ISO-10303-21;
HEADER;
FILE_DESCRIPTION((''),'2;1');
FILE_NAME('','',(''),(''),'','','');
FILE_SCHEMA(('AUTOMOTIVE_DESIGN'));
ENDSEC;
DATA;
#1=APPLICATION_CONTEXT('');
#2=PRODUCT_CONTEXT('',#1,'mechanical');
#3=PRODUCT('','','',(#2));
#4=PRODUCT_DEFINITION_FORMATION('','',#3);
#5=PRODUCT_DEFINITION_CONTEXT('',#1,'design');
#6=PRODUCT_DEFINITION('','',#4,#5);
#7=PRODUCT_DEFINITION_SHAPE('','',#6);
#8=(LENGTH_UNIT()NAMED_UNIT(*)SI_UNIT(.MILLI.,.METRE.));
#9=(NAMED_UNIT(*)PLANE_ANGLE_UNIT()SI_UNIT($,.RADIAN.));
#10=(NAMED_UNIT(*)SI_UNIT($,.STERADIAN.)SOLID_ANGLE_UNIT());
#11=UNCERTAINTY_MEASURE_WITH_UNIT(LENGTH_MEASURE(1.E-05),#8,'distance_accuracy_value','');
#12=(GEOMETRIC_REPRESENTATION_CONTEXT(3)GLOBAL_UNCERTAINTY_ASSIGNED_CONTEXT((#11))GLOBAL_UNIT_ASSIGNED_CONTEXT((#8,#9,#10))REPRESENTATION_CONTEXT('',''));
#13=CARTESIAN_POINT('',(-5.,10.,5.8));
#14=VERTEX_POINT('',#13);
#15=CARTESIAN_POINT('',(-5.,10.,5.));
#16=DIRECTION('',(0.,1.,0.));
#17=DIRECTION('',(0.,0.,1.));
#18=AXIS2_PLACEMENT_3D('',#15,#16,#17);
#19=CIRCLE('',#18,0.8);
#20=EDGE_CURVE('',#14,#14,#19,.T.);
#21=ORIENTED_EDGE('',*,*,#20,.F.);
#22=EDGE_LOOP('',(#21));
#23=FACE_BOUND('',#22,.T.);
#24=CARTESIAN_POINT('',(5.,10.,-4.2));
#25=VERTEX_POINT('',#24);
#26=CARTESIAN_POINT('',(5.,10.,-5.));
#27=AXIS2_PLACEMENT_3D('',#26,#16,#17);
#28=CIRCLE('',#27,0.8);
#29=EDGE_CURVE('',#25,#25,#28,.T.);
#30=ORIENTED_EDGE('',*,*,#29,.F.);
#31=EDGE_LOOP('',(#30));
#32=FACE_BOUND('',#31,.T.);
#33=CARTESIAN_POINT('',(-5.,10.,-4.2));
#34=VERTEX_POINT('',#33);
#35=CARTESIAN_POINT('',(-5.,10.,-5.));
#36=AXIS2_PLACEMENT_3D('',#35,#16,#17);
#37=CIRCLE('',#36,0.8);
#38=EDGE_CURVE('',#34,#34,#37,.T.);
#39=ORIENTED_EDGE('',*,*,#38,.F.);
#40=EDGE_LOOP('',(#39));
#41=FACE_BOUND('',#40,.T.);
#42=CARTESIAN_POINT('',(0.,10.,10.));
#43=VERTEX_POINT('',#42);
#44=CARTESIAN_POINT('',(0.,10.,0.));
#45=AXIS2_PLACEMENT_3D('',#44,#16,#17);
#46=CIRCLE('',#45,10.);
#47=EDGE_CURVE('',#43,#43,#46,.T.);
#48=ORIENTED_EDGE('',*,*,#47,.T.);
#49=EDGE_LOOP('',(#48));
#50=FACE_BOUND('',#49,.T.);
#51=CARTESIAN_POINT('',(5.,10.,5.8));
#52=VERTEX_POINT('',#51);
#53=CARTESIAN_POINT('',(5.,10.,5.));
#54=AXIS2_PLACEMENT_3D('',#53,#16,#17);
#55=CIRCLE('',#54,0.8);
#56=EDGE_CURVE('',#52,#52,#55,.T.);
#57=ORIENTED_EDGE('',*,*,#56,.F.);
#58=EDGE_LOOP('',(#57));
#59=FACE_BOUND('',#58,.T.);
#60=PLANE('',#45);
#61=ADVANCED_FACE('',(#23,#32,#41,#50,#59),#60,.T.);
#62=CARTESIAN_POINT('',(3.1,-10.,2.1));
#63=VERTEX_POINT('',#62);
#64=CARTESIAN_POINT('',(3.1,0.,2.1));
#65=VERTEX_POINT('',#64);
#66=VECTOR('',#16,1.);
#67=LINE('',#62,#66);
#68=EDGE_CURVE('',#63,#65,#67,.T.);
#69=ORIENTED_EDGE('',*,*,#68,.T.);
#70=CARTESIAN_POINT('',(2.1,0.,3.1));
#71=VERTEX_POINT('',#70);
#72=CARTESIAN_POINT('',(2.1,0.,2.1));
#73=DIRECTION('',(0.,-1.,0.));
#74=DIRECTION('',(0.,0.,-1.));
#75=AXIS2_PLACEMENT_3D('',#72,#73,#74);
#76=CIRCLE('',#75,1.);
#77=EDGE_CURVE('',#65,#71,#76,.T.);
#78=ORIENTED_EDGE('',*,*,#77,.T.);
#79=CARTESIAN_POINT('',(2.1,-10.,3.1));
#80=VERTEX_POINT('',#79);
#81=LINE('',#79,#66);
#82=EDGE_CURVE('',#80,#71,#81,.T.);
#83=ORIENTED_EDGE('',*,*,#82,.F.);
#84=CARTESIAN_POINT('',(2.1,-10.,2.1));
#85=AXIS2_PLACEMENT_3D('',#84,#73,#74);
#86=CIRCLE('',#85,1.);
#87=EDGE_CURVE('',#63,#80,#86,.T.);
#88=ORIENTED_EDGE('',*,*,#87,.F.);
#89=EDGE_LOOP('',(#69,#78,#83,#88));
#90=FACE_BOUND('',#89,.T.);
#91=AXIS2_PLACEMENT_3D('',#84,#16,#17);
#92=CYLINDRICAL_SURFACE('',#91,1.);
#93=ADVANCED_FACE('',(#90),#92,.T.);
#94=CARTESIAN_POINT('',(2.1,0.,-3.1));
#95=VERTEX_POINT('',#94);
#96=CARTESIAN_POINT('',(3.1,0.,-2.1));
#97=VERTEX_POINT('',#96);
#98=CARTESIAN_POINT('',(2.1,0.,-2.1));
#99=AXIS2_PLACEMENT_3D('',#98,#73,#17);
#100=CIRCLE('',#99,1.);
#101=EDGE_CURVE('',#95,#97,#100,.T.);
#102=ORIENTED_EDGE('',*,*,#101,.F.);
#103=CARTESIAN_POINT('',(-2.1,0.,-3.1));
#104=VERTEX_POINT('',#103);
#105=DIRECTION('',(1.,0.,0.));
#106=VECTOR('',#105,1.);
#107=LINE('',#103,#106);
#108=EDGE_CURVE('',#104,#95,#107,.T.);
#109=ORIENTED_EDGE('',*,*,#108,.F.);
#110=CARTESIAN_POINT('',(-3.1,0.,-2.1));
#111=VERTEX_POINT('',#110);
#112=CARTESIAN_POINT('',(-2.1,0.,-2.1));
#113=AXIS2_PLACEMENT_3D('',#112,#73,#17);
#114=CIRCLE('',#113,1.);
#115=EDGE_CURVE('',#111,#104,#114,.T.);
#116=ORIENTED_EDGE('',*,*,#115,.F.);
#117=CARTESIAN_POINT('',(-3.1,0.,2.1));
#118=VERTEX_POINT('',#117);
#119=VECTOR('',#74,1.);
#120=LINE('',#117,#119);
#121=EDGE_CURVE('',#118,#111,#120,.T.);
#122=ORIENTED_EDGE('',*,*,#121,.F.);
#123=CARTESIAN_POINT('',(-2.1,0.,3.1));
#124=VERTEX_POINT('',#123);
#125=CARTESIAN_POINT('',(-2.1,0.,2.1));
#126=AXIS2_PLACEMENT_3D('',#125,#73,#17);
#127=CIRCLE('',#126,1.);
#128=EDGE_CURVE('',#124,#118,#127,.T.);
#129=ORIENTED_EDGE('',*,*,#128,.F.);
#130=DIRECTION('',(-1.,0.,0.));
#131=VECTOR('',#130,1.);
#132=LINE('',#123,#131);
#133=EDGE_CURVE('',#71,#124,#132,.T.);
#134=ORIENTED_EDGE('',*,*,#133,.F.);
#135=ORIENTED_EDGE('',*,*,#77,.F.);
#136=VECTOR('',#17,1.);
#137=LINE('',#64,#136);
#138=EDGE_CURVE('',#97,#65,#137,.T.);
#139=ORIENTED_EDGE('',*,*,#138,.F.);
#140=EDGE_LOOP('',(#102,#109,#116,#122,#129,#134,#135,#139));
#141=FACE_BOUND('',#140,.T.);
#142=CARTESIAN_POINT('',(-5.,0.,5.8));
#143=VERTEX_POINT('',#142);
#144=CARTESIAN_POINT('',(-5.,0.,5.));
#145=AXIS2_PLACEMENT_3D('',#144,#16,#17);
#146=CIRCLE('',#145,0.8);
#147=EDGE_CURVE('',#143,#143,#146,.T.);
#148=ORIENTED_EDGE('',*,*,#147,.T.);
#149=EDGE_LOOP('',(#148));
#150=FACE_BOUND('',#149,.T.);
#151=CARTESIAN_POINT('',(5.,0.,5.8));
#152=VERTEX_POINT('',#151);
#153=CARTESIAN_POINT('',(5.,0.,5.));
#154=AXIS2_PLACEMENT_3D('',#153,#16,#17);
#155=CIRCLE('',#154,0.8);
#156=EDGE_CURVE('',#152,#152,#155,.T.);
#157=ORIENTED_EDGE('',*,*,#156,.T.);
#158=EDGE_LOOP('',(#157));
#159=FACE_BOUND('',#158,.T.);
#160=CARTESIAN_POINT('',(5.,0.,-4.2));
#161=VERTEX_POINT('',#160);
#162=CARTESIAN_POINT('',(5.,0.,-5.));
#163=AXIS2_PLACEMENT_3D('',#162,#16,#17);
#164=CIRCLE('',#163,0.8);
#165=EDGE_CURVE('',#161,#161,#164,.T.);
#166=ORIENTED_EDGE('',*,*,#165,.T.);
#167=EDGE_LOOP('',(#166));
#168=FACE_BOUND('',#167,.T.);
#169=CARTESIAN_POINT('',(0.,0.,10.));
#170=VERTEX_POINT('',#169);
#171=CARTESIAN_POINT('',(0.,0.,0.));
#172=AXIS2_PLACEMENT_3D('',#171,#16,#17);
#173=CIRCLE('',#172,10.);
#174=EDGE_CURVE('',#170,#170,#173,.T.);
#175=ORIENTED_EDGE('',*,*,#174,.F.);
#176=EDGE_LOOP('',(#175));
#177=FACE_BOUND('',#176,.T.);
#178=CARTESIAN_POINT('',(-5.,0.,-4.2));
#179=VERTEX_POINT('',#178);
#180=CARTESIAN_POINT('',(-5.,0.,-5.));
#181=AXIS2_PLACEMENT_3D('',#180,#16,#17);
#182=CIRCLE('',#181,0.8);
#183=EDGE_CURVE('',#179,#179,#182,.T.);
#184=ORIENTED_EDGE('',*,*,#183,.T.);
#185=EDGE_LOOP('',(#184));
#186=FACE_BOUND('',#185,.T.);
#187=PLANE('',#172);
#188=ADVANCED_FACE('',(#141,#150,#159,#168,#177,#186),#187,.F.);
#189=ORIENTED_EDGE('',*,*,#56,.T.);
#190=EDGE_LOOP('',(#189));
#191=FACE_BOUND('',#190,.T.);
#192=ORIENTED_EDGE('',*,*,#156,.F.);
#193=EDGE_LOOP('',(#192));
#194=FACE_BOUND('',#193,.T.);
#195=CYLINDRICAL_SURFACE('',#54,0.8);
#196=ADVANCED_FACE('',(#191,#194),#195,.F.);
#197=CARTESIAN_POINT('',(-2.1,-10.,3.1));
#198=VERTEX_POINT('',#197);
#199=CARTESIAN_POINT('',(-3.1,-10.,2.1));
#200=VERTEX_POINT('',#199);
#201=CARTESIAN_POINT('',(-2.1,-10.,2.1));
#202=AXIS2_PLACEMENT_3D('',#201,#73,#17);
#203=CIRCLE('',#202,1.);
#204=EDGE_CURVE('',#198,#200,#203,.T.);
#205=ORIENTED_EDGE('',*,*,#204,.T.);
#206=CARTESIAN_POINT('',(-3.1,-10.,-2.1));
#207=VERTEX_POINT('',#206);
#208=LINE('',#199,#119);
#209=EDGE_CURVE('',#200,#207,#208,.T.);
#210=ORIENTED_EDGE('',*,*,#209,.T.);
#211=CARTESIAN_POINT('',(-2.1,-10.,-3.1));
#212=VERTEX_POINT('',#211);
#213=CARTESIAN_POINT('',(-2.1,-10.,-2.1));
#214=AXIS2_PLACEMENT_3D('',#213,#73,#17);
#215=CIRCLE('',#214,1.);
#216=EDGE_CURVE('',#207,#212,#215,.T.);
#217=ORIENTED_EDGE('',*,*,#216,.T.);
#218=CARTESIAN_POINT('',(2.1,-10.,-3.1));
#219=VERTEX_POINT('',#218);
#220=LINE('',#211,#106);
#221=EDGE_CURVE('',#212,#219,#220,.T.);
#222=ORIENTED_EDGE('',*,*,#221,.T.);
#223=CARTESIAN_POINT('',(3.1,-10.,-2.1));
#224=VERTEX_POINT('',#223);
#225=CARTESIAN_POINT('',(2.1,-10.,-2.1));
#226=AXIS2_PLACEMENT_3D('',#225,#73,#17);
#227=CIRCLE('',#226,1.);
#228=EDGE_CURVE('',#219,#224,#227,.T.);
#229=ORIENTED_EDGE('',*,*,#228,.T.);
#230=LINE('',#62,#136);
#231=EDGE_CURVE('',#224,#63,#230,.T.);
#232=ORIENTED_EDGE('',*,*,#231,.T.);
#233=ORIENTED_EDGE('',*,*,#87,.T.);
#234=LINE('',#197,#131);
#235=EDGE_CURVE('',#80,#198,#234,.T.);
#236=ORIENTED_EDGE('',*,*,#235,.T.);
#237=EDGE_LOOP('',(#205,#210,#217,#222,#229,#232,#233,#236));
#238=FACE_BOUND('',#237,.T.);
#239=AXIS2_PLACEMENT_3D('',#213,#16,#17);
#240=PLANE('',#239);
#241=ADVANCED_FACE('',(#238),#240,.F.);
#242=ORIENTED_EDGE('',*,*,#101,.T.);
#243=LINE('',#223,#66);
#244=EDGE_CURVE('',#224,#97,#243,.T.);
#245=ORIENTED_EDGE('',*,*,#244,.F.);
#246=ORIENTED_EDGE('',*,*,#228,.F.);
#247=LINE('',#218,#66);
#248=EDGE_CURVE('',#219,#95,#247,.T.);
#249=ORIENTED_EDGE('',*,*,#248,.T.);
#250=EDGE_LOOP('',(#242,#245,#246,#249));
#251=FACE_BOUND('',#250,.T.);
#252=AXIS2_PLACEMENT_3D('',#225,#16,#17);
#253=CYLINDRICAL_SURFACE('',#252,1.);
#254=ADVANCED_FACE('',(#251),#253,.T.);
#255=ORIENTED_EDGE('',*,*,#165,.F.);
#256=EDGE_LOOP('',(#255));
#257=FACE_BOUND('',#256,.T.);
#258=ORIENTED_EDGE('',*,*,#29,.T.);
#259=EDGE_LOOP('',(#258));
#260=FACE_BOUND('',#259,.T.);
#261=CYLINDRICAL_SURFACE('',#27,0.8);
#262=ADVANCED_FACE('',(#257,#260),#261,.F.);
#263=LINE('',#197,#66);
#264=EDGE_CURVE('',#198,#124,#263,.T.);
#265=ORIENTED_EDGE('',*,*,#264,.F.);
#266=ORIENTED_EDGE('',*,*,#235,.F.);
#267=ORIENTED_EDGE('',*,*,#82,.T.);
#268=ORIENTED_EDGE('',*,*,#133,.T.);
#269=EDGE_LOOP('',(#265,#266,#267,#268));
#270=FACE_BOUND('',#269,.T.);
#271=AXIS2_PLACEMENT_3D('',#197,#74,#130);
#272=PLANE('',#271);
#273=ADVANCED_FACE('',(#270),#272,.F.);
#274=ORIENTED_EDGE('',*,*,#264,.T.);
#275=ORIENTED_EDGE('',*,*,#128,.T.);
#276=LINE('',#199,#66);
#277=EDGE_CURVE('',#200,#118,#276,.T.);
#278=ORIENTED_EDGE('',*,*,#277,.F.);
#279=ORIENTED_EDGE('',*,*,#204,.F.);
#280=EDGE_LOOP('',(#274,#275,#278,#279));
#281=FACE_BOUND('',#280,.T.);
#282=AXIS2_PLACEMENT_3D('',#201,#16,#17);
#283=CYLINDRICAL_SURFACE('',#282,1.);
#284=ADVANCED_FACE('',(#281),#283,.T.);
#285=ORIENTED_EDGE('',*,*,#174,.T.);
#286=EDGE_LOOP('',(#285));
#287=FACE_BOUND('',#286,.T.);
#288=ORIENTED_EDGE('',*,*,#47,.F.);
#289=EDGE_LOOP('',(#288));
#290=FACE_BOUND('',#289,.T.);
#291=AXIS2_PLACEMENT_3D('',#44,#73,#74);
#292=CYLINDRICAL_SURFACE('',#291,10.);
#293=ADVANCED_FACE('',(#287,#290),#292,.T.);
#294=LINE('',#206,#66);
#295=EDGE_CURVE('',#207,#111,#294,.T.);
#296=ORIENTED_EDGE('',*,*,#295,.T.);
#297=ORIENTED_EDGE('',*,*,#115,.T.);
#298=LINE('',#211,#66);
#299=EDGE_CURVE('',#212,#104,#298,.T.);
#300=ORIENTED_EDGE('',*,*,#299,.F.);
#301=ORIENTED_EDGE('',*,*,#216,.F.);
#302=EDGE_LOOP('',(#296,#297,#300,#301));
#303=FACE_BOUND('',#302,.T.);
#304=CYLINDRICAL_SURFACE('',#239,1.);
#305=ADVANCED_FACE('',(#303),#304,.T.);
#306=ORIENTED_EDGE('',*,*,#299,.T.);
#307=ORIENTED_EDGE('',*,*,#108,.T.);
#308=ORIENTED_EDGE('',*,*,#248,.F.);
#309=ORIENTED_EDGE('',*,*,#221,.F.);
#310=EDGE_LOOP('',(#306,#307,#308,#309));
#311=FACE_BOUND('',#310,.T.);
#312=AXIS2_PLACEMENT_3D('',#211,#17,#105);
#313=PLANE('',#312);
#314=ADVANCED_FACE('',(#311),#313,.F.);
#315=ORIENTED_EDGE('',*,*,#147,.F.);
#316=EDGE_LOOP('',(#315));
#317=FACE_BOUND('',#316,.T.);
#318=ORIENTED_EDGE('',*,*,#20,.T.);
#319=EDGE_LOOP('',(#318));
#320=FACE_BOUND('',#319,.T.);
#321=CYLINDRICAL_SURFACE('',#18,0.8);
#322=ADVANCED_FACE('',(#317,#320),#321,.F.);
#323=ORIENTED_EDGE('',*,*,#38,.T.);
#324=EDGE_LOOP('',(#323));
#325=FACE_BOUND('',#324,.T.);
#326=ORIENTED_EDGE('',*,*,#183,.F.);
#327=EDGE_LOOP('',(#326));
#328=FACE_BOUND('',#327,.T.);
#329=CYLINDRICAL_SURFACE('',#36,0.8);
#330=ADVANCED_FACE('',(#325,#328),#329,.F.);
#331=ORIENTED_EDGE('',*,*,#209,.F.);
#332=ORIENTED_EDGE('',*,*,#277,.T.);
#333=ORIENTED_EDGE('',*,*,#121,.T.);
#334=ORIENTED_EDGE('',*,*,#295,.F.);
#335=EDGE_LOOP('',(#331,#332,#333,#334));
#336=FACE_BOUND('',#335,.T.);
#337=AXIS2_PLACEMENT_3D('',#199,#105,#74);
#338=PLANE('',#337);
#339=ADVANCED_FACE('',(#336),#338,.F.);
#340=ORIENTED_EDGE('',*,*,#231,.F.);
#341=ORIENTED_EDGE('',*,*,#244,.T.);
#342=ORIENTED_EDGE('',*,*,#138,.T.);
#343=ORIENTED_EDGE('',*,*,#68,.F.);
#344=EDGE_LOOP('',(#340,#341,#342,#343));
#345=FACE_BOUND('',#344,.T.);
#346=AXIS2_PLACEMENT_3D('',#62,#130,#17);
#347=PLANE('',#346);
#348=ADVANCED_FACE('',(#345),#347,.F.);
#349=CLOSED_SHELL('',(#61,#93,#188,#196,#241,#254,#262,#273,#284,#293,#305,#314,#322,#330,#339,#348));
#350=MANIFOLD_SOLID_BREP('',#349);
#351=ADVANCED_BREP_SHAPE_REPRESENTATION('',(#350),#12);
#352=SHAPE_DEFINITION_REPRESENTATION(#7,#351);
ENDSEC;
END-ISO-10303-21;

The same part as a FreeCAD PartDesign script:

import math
import FreeCAD as App
import Part
import Sketcher
Q = App.Units.Quantity

doc = App.newDocument("Part")
body = doc.addObject("PartDesign::Body", "Body")

# Sketch on XZ plane
sketch1 = doc.addObject("Sketcher::SketchObject", "Sketch")
body.addObject(sketch1)
sketch1.AttachmentSupport = (doc.XZ_Plane, [""])
sketch1.MapMode = "FlatFace"
sketch1.addGeometry(Part.Circle(App.Vector(0, 0, 0), App.Vector(0, 0, 1), 10), False)
sketch1.addConstraint([
    Sketcher.Constraint("Coincident", 0, 3, -1, 1),
    Sketcher.Constraint("Diameter", 0, Q("20 mm")),
])
pad1 = doc.addObject("PartDesign::Pad", "Pad")
body.addObject(pad1)
pad1.Profile = sketch1
pad1.Length = 10
pad1.Reversed = True

# Sketch on XZ plane
sketch2 = doc.addObject("Sketcher::SketchObject", "Sketch001")
body.addObject(sketch2)
sketch2.AttachmentSupport = (doc.XZ_Plane, [""])
sketch2.MapMode = "FlatFace"
sketch2.AttachmentOffset = App.Placement(App.Vector(0, 0, -10), App.Rotation())
sketch2.addGeometry([
    Part.Circle(App.Vector(-5, -5, 0), App.Vector(0, 0, 1), 0.8),
    Part.Circle(App.Vector(5, -5, 0), App.Vector(0, 0, 1), 0.8),
    Part.Circle(App.Vector(5, 5, 0), App.Vector(0, 0, 1), 0.8),
    Part.Circle(App.Vector(-5, 5, 0), App.Vector(0, 0, 1), 0.8),
], False)
sketch2.addConstraint([
    Sketcher.Constraint("Equal", 0, 1),
    Sketcher.Constraint("Equal", 1, 2),
    Sketcher.Constraint("Equal", 2, 3),
    Sketcher.Constraint("Symmetric", 0, 3, 2, 3, -1, 1),
    Sketcher.Constraint("Symmetric", 1, 3, 3, 3, -1, 1),
    Sketcher.Constraint("Symmetric", 0, 3, 1, 3, -2),
    Sketcher.Constraint("Diameter", 0, Q("1.6 mm")),
    Sketcher.Constraint("DistanceX", 0, 3, -1, 1, Q("5 mm")),
    Sketcher.Constraint("DistanceY", 0, 3, -1, 1, Q("5 mm")),
])
doc.recompute()
hole = doc.addObject("PartDesign::Hole", "Hole")
body.addObject(hole)
hole.Profile = sketch2
hole.ThreadType = "None"
hole.Diameter = 1.6
hole.DepthType = "ThroughAll"
hole.Reversed = True

# Sketch on XZ plane
sketch3 = doc.addObject("Sketcher::SketchObject", "Sketch002")
body.addObject(sketch3)
sketch3.AttachmentSupport = (doc.XZ_Plane, [""])
sketch3.MapMode = "FlatFace"
sketch3.addGeometry([
    Part.LineSegment(App.Vector(2.1, 3.1, 0), App.Vector(-2.1, 3.1, 0)),  # 0
    Part.ArcOfCircle(Part.Circle(App.Vector(-2.1, 2.1, 0), App.Vector(0, 0, 1), 1), math.radians(90), math.radians(180)),  # 1
    Part.LineSegment(App.Vector(-3.1, 2.1, 0), App.Vector(-3.1, -2.1, 0)),  # 2
    Part.ArcOfCircle(Part.Circle(App.Vector(-2.1, -2.1, 0), App.Vector(0, 0, 1), 1), math.radians(-180), math.radians(-90)),  # 3
    Part.LineSegment(App.Vector(-2.1, -3.1, 0), App.Vector(2.1, -3.1, 0)),  # 4
    Part.ArcOfCircle(Part.Circle(App.Vector(2.1, -2.1, 0), App.Vector(0, 0, 1), 1), math.radians(-90), math.radians(0)),  # 5
    Part.LineSegment(App.Vector(3.1, -2.1, 0), App.Vector(3.1, 2.1, 0)),  # 6
    Part.ArcOfCircle(Part.Circle(App.Vector(2.1, 2.1, 0), App.Vector(0, 0, 1), 1), math.radians(0), math.radians(90)),  # 7
], False)
sketch3.addConstraint([
    Sketcher.Constraint("Tangent", 0, 2, 1, 1),
    Sketcher.Constraint("Tangent", 1, 2, 2, 1),
    Sketcher.Constraint("Tangent", 2, 2, 3, 1),
    Sketcher.Constraint("Tangent", 3, 2, 4, 1),
    Sketcher.Constraint("Tangent", 4, 2, 5, 1),
    Sketcher.Constraint("Tangent", 5, 2, 6, 1),
    Sketcher.Constraint("Tangent", 6, 2, 7, 1),
    Sketcher.Constraint("Tangent", 7, 2, 0, 1),
    Sketcher.Constraint("Horizontal", 0),
    Sketcher.Constraint("Vertical", 2),
    Sketcher.Constraint("Horizontal", 4),
    Sketcher.Constraint("Vertical", 6),
    Sketcher.Constraint("Equal", 1, 3),
    Sketcher.Constraint("Equal", 3, 5),
    Sketcher.Constraint("Equal", 5, 7),
    Sketcher.Constraint("Symmetric", 1, 3, 5, 3, -1, 1),
    Sketcher.Constraint("Equal", 4, 2),
    Sketcher.Constraint("Radius", 1, Q("1 mm")),
    Sketcher.Constraint("DistanceX", 0, 2, 0, 1, Q("4.2 mm")),
])
pad2 = doc.addObject("PartDesign::Pad", "Pad001")
body.addObject(pad2)
pad2.Profile = sketch3
pad2.Length = 10

doc.recompute()
